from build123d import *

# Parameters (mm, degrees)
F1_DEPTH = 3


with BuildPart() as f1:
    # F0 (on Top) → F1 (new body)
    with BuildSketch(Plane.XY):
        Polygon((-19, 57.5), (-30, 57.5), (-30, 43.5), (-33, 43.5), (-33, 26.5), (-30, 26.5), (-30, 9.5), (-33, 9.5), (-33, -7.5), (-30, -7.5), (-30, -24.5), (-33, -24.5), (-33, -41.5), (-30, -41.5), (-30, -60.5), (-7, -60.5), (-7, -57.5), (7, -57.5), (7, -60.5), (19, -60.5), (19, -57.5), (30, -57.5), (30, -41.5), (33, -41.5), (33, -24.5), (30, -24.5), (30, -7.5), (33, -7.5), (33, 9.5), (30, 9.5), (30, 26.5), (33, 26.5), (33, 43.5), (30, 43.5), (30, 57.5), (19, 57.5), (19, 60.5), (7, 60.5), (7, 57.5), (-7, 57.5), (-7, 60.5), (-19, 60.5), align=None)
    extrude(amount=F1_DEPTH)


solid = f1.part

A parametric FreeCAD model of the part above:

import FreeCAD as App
import Part
import Sketcher
from FreeCAD import Vector


def add_polygon(sketch, points):
    """Adds a closed chain of lines whose ends are joined by coincident constraints."""
    first, n = sketch.GeometryCount, len(points)
    for a, b in zip(points, points[1:] + points[:1]):
        sketch.addGeometry(Part.LineSegment(App.Vector(*a, 0), App.Vector(*b, 0)), False)
    for i in range(n):
        sketch.addConstraint(Sketcher.Constraint("Coincident", first + i, 2, first + (i + 1) % n, 1))

doc = App.newDocument("Part")
body = doc.addObject("PartDesign::Body", "Body")

# Sketch on XY plane
sketch1 = body.newObject("Sketcher::SketchObject", "Sketch")
sketch1.AttachmentSupport = (doc.getObject("XY_Plane"), [""])
sketch1.MapMode = "FlatFace"
add_polygon(sketch1, [(-19, 57.5), (-30, 57.5), (-30, 43.5), (-33, 43.5), (-33, 26.5), (-30, 26.5), (-30, 9.5), (-33, 9.5), (-33, -7.5), (-30, -7.5), (-30, -24.5), (-33, -24.5), (-33, -41.5), (-30, -41.5), (-30, -60.5), (-7, -60.5), (-7, -57.5), (7, -57.5), (7, -60.5), (19, -60.5), (19, -57.5), (30, -57.5), (30, -41.5), (33, -41.5), (33, -24.5), (30, -24.5), (30, -7.5), (33, -7.5), (33, 9.5), (30, 9.5), (30, 26.5), (33, 26.5), (33, 43.5), (30, 43.5), (30, 57.5), (19, 57.5), (19, 60.5), (7, 60.5), (7, 57.5), (-7, 57.5), (-7, 60.5), (-19, 60.5)])  # lines 0-41
sketch1.addConstraint([
    Sketcher.Constraint("Horizontal", 0),
    Sketcher.Constraint("Vertical", 1),
    Sketcher.Constraint("Horizontal", 2),
    Sketcher.Constraint("Vertical", 3),
    Sketcher.Constraint("Horizontal", 4),
    Sketcher.Constraint("Vertical", 5),
    Sketcher.Constraint("Horizontal", 6),
    Sketcher.Constraint("Vertical", 7),
    Sketcher.Constraint("Horizontal", 8),
    Sketcher.Constraint("Vertical", 9),
    Sketcher.Constraint("Horizontal", 10),
    Sketcher.Constraint("Vertical", 11),
    Sketcher.Constraint("Horizontal", 12),
    Sketcher.Constraint("Vertical", 13),
    Sketcher.Constraint("Horizontal", 14),
    Sketcher.Constraint("Vertical", 15),
    Sketcher.Constraint("Horizontal", 16),
    Sketcher.Constraint("Vertical", 17),
    Sketcher.Constraint("Horizontal", 18),
    Sketcher.Constraint("Vertical", 19),
    Sketcher.Constraint("Horizontal", 20),
    Sketcher.Constraint("Vertical", 21),
    Sketcher.Constraint("Horizontal", 22),
    Sketcher.Constraint("Vertical", 23),
    Sketcher.Constraint("Horizontal", 24),
    Sketcher.Constraint("Vertical", 25),
    Sketcher.Constraint("Horizontal", 26),
    Sketcher.Constraint("Vertical", 27),
    Sketcher.Constraint("Horizontal", 28),
    Sketcher.Constraint("Vertical", 29),
    Sketcher.Constraint("Horizontal", 30),
    Sketcher.Constraint("Vertical", 31),
    Sketcher.Constraint("Horizontal", 32),
    Sketcher.Constraint("Vertical", 33),
    Sketcher.Constraint("Horizontal", 34),
    Sketcher.Constraint("Vertical", 35),
    Sketcher.Constraint("Horizontal", 36),
    Sketcher.Constraint("Vertical", 37),
    Sketcher.Constraint("Horizontal", 38),
    Sketcher.Constraint("Vertical", 39),
    Sketcher.Constraint("Horizontal", 40),
    Sketcher.Constraint("Vertical", 41),
    Sketcher.Constraint("Symmetric", 0, 2, 20, 2, -1, 1),
    Sketcher.Constraint("Symmetric", 14, 2, 36, 2, -1, 1),
    Sketcher.Constraint("Symmetric", 16, 2, 38, 2, -1, 1),
    Sketcher.Constraint("Symmetric", 18, 2, 40, 2, -1, 1),
    Sketcher.Constraint("Symmetric", 14, 2, 17, 2, -2),
    Sketcher.Constraint("Symmetric", 12, 2, 21, 2, -2),
    Sketcher.Constraint("Symmetric", 10, 2, 23, 2, -2),
    Sketcher.Constraint("Symmetric", 8, 2, 25, 2, -2),
    Sketcher.Constraint("Symmetric", 6, 2, 27, 2, -2),
    Sketcher.Constraint("Symmetric", 4, 2, 29, 2, -2),
    Sketcher.Constraint("Symmetric", 2, 2, 31, 2, -2),
    Sketcher.Constraint("Symmetric", 0, 2, 33, 2, -2),
    Sketcher.Constraint("Horizontal", 16, 2, 19, 2),
    Sketcher.Constraint("Vertical", 1, 2, 4, 2),
    Sketcher.Constraint("Vertical", 3, 2, 6, 2),
    Sketcher.Constraint("Vertical", 5, 2, 8, 2),
    Sketcher.Constraint("Vertical", 7, 2, 10, 2),
    Sketcher.Constraint("Vertical", 19, 2, 34, 2),
    Sketcher.Constraint("Equal", 38, 1),
    Sketcher.Constraint("Equal", 3, 5),
    Sketcher.Constraint("Equal", 5, 7),
    Sketcher.Constraint("Equal", 7, 9),
    Sketcher.Constraint("Equal", 9, 11),
    Sketcher.Constraint("Equal", 32, 15),
    Sketcher.Constraint("DistanceX", 0, 2, 0, 1, 11.0),
    Sketcher.Constraint("DistanceX", 2, 2, 2, 1, 3.0),
    Sketcher.Constraint("DistanceX", 14, 1, 14, 2, 23.0),
    Sketcher.Constraint("DistanceX", 16, 1, 16, 2, 14.0),
    Sketcher.Constraint("DistanceY", 3, 2, 3, 1, 17.0),
    Sketcher.Constraint("DistanceY", 13, 2, 13, 1, 19.0),
])
pad1 = body.newObject("PartDesign::Pad", "Pad")
pad1.Profile = sketch1
pad1.Length = 3

doc.recompute()
